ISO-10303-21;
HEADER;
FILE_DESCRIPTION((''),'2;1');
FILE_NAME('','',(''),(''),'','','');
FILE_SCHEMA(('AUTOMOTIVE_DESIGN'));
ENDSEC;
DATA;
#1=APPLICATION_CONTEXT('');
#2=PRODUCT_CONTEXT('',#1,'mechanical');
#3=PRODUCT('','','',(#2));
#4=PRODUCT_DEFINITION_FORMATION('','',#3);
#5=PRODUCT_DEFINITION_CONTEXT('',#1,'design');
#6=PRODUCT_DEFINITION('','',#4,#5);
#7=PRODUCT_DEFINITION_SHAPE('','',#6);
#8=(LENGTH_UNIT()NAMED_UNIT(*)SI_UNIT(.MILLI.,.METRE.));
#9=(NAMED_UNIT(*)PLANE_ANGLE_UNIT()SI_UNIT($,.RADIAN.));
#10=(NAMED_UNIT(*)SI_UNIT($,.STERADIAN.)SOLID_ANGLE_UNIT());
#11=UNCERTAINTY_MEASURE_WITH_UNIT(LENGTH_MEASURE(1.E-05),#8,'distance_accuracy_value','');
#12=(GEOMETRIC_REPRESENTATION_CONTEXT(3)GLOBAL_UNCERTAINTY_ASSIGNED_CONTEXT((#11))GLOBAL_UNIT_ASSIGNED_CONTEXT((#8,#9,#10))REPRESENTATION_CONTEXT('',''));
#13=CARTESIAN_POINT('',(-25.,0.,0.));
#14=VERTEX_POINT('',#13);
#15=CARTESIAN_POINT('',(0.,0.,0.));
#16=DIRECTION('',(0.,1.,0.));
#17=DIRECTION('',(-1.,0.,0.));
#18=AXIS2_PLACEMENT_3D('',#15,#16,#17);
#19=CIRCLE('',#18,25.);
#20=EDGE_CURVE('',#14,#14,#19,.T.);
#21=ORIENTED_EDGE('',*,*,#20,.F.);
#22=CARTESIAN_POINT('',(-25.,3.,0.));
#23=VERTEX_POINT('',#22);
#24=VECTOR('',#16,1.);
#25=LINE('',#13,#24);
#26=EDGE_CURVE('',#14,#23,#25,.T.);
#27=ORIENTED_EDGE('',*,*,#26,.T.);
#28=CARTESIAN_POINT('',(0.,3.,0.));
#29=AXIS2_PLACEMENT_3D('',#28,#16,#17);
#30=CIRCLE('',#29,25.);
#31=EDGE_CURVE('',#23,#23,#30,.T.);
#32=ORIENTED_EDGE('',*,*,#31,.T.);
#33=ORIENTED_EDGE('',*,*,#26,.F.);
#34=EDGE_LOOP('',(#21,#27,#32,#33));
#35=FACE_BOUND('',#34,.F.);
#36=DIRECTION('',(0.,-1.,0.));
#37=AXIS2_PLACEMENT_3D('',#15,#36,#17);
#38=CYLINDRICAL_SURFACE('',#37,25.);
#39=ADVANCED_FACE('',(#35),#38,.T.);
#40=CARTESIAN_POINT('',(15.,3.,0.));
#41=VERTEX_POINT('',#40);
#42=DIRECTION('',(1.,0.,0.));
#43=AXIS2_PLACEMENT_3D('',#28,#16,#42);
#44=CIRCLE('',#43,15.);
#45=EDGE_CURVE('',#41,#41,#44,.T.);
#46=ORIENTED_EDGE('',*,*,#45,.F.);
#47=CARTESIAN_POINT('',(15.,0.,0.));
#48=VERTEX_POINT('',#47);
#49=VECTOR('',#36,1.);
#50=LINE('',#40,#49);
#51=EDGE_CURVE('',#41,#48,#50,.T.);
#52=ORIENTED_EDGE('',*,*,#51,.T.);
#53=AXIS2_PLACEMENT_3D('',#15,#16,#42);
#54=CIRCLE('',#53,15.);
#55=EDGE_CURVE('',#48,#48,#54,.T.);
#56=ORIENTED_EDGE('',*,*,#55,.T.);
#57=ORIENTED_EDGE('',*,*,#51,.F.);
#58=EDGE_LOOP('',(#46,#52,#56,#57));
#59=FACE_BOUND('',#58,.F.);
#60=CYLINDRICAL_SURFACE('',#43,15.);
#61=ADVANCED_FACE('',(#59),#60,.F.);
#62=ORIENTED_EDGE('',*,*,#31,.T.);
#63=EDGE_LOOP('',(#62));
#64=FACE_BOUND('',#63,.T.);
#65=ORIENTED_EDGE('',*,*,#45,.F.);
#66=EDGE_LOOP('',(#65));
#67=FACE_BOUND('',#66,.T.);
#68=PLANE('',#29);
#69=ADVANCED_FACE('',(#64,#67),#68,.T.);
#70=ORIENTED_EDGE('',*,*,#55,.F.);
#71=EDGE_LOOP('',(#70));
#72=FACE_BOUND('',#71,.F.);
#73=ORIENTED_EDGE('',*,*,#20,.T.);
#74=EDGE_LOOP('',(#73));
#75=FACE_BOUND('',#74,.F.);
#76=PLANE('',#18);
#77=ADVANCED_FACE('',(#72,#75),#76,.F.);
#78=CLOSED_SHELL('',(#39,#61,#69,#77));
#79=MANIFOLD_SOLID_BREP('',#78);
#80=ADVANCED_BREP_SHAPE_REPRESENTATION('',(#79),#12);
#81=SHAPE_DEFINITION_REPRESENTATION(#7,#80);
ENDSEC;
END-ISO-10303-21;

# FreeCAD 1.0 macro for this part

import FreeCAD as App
import Part
import Sketcher
Q = App.Units.Quantity

doc = App.newDocument("Part")
params = doc.addObject("Spreadsheet::Sheet", "Params")
for row, (alias, value) in enumerate([
    ("sketch1_diameter", "50 mm"),
    ("pad1_length", "3 mm"),
    ("sketch2_diameter", "30 mm"),
    ("pocket1_length", "3 mm"),
], start=1):
    params.set(f"A{row}", alias)
    params.set(f"B{row}", "=" + value)
    params.setAlias(f"B{row}", alias)

body = doc.addObject("PartDesign::Body", "Body")

# Sketch on XZ plane
sketch1 = doc.addObject("Sketcher::SketchObject", "Sketch")
body.addObject(sketch1)
sketch1.AttachmentSupport = (doc.XZ_Plane, [""])
sketch1.MapMode = "FlatFace"
sketch1.addGeometry(Part.Circle(App.Vector(0, 0, 0), App.Vector(0, 0, 1), 25), False)
sketch1.addConstraint([
    Sketcher.Constraint("Coincident", 0, 3, -1, 1),
    Sketcher.Constraint("Diameter", 0, Q("50 mm")),
])
sketch1.setExpression("Constraints[1]", "Params.sketch1_diameter")
pad1 = doc.addObject("PartDesign::Pad", "Pad")
body.addObject(pad1)
pad1.Profile = sketch1
pad1.setExpression("Length", "Params.pad1_length")
pad1.Reversed = True

# Sketch on XZ plane
sketch2 = doc.addObject("Sketcher::SketchObject", "Sketch001")
body.addObject(sketch2)
sketch2.AttachmentSupport = (doc.XZ_Plane, [""])
sketch2.MapMode = "FlatFace"
sketch2.AttachmentOffset = App.Placement(App.Vector(0, 0, -3), App.Rotation())
sketch2.addGeometry(Part.Circle(App.Vector(0, 0, 0), App.Vector(0, 0, 1), 15), False)
sketch2.addConstraint([
    Sketcher.Constraint("Coincident", 0, 3, -1, 1),
    Sketcher.Constraint("Diameter", 0, Q("30 mm")),
])
sketch2.setExpression("Constraints[1]", "Params.sketch2_diameter")
pocket1 = doc.addObject("PartDesign::Pocket", "Pocket")
body.addObject(pocket1)
pocket1.Profile = sketch2
pocket1.setExpression("Length", "Params.pocket1_length")
pocket1.Reversed = True

doc.recompute()
